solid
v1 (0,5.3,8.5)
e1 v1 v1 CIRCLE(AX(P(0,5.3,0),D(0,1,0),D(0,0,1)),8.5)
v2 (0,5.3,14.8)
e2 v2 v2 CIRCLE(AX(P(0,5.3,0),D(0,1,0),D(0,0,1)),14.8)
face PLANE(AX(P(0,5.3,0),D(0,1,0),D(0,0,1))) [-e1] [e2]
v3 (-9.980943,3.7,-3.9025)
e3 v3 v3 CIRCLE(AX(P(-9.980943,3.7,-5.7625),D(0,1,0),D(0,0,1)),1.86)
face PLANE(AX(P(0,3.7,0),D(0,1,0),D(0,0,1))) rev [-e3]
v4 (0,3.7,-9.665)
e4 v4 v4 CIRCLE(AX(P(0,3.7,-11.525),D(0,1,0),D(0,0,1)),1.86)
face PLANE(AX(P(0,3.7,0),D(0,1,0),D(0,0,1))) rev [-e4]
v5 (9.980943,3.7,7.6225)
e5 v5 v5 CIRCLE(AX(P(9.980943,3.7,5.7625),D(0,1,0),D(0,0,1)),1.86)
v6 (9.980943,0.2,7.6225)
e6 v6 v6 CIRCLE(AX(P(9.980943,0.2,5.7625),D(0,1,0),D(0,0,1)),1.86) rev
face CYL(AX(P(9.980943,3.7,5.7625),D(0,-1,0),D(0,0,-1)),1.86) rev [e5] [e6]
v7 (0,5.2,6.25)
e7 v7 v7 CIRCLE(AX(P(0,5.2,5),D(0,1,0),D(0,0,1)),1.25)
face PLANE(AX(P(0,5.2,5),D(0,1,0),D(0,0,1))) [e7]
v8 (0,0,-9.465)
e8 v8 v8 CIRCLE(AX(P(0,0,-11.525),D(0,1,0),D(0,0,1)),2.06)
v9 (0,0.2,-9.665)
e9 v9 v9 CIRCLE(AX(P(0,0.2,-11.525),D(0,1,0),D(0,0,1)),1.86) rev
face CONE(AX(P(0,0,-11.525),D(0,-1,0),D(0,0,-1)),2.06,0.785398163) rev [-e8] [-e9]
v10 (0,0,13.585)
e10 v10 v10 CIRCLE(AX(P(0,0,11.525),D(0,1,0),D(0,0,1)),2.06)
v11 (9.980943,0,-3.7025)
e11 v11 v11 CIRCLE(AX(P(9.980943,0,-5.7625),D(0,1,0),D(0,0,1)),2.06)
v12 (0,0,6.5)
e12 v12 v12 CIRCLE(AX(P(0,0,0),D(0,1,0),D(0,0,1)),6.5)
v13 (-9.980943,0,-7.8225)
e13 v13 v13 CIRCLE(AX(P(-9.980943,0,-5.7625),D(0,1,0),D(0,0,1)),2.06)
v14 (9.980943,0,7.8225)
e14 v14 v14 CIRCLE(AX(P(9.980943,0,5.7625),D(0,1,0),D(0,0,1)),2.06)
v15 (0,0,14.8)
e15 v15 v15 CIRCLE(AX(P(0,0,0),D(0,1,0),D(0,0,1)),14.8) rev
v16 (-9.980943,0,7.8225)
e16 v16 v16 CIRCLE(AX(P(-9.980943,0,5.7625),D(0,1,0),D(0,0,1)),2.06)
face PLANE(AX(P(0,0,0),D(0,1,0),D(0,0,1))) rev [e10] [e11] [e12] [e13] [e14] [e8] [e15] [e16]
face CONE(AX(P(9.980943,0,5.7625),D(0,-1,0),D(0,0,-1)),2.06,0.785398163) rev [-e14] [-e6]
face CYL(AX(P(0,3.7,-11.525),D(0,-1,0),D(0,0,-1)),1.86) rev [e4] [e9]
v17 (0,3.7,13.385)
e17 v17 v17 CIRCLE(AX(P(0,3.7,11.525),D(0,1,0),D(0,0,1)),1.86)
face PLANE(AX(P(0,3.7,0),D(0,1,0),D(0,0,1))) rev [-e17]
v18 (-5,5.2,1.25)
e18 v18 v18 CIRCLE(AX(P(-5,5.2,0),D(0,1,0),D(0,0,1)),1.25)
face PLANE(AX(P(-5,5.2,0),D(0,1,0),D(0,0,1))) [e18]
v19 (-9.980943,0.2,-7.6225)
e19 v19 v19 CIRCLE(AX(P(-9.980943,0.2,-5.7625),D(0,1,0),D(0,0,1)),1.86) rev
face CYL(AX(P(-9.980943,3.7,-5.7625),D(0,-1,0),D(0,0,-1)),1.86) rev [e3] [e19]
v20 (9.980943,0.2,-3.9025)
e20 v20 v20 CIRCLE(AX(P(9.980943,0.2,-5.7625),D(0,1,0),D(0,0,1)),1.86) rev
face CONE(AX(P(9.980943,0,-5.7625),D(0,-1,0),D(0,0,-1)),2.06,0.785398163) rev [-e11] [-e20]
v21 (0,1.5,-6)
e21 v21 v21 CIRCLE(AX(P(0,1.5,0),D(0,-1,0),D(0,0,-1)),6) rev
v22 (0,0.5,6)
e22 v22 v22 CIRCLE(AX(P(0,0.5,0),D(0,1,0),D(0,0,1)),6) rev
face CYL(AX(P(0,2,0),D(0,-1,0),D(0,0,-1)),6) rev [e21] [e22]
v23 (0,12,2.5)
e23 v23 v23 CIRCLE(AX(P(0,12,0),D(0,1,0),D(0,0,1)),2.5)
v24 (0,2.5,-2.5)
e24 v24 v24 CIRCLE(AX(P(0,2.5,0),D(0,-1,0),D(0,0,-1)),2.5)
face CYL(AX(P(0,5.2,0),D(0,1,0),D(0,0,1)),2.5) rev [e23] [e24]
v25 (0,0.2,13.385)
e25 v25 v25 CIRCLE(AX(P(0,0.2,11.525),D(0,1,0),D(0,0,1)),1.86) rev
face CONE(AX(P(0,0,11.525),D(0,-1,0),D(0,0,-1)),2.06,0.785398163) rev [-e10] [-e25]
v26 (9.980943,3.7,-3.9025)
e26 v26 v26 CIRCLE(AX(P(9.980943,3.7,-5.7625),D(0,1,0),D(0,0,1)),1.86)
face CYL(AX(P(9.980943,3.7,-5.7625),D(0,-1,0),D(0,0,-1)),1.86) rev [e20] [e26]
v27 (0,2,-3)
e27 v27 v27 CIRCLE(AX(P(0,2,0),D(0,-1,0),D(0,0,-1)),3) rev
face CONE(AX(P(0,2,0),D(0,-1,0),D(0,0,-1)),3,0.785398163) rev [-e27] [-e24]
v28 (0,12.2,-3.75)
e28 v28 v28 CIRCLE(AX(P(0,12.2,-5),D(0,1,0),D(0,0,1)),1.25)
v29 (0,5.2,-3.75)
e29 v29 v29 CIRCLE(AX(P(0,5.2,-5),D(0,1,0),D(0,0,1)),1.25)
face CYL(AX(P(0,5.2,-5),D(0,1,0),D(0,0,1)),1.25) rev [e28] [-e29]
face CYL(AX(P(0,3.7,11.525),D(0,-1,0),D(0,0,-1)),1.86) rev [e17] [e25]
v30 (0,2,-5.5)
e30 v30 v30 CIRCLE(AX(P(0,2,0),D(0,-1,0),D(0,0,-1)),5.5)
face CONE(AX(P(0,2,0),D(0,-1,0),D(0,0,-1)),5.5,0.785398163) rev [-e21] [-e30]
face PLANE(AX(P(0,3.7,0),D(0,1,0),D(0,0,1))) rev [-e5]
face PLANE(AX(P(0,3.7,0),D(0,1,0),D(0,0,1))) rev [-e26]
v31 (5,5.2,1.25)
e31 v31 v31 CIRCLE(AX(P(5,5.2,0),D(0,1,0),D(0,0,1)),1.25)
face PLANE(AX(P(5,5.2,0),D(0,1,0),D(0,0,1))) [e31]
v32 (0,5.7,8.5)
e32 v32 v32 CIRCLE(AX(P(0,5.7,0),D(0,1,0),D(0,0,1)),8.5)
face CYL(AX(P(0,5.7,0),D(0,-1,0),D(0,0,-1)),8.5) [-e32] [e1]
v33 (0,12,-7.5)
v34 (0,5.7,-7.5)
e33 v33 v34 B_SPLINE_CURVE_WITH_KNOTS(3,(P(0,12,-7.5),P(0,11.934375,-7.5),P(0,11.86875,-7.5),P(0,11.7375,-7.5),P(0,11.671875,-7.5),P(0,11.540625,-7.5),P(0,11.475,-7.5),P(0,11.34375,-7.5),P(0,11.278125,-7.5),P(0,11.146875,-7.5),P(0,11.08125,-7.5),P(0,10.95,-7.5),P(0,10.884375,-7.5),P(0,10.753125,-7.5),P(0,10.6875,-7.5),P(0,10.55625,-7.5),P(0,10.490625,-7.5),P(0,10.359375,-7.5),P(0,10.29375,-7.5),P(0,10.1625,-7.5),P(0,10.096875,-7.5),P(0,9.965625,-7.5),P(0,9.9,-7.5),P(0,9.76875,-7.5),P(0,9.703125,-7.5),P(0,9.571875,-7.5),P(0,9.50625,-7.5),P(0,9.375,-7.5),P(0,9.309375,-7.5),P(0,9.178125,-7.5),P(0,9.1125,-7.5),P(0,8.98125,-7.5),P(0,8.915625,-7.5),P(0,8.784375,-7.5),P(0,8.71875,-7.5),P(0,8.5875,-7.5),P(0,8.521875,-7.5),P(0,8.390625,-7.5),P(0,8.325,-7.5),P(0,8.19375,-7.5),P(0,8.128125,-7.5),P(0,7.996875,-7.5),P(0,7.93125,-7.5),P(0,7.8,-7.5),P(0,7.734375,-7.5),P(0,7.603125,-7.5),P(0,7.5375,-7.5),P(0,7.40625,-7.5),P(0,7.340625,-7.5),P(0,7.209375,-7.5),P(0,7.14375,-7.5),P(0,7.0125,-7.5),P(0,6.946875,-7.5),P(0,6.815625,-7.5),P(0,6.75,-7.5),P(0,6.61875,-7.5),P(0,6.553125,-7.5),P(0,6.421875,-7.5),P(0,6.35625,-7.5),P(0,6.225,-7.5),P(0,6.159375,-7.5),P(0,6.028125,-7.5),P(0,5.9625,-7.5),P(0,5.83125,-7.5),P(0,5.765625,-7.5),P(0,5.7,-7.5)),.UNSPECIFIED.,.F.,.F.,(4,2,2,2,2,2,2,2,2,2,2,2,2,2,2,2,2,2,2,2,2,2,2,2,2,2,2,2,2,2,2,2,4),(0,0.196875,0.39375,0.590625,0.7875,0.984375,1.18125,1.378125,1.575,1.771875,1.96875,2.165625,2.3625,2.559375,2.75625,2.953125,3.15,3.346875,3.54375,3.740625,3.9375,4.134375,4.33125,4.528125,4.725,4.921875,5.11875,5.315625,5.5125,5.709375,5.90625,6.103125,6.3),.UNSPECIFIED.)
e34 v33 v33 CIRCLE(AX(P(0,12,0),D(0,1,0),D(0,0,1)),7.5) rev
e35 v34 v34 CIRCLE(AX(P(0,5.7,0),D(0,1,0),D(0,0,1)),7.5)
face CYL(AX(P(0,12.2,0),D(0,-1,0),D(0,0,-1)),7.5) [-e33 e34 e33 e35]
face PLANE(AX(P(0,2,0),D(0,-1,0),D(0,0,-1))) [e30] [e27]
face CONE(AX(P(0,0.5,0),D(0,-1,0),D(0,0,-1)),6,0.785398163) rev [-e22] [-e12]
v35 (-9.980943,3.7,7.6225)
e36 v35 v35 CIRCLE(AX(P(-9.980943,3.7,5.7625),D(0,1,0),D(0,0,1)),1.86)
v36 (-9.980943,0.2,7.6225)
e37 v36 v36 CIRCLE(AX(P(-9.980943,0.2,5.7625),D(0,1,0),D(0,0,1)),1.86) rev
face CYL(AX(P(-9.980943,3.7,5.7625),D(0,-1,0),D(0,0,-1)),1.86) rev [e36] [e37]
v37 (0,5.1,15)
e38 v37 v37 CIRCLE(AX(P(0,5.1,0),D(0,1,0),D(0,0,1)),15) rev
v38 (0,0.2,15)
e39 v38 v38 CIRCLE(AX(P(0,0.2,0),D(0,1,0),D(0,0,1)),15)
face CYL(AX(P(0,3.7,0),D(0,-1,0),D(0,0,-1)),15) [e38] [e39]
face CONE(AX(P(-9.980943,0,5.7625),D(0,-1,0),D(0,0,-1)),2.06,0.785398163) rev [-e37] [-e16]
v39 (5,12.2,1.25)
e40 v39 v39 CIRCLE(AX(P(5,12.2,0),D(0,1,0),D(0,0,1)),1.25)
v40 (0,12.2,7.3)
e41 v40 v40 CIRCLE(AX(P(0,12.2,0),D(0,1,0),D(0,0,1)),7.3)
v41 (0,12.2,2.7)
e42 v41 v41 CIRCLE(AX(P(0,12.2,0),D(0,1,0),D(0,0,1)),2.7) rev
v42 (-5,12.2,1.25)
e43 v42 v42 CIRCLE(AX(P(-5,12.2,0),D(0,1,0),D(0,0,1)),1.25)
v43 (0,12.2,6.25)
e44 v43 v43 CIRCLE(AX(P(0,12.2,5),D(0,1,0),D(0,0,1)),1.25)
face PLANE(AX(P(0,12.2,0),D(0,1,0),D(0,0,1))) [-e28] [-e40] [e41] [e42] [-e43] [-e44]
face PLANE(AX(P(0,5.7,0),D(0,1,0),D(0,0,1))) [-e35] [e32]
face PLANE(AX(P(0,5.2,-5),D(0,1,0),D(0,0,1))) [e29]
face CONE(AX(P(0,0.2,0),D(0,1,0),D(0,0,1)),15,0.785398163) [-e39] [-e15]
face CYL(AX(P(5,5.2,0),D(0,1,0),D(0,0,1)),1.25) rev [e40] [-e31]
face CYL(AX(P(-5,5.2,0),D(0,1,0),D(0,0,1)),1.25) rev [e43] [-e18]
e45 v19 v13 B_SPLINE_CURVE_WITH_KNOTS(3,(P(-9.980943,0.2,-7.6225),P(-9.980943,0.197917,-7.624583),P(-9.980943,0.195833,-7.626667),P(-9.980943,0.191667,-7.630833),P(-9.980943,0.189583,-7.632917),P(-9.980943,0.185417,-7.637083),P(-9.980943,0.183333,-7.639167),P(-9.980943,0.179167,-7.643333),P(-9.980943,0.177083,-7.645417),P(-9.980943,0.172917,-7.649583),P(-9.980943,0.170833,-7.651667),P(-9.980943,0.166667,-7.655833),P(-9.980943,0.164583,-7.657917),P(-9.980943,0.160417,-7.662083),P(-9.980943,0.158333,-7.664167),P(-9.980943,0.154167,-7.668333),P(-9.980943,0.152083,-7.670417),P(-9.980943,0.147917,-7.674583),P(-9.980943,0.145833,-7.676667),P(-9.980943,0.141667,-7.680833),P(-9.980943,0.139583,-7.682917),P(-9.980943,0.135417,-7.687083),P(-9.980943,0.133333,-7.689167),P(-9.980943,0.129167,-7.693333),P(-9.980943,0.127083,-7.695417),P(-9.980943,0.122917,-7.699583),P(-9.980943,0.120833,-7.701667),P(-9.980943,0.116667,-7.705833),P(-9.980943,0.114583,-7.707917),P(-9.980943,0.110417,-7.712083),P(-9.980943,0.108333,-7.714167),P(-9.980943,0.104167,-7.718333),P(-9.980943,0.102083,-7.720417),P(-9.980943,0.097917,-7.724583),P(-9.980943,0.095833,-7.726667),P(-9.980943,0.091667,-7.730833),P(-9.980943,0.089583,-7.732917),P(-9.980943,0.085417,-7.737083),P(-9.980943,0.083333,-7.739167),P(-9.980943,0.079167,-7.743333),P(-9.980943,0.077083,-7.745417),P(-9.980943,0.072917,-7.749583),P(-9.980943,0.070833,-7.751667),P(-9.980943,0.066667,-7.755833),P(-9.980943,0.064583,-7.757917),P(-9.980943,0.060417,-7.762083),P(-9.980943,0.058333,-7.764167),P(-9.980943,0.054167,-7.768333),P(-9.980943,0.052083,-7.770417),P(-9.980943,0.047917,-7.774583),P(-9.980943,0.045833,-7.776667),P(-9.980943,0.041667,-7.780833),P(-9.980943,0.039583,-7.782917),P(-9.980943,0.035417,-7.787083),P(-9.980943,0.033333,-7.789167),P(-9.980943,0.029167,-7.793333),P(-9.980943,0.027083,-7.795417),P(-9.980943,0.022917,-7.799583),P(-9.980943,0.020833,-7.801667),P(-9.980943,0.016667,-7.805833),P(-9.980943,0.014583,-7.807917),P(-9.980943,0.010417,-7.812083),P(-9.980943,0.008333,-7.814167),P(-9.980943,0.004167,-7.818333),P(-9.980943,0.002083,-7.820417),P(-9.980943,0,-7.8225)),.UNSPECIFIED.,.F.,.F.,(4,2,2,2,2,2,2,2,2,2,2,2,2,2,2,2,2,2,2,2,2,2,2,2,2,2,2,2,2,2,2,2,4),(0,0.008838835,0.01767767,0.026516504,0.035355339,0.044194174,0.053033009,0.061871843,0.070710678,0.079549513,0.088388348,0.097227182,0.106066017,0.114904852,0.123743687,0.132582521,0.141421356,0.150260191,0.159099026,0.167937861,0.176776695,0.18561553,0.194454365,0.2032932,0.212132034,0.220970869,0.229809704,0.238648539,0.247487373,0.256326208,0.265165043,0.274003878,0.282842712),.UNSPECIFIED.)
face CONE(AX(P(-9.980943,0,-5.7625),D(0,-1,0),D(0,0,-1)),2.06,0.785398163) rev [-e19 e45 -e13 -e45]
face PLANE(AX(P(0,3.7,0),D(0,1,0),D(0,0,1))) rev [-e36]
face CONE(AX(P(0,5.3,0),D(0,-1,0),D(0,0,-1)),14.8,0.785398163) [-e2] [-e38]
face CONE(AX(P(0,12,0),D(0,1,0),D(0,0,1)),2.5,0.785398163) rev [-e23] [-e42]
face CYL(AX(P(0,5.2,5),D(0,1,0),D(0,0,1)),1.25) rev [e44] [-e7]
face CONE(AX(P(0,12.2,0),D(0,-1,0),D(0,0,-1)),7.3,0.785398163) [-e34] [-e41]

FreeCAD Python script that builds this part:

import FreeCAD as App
import Part
import Sketcher


def edges_at(feature, points):
    """Names of the edges that pass closest to the given points."""
    edges = feature.Shape.Edges
    near = lambda p: min(range(len(edges)), key=lambda i: edges[i].distToShape(Part.Vertex(*p))[0])
    return sorted({f"Edge{near(p) + 1}" for p in points})

doc = App.newDocument("Part")
body = doc.addObject("PartDesign::Body", "Body")

# Sketch on XZ plane
sketch1 = body.newObject("Sketcher::SketchObject", "Sketch")
sketch1.AttachmentSupport = (doc.getObject("XZ_Plane"), [""])
sketch1.MapMode = "FlatFace"
sketch1.addGeometry([
    Part.Circle(App.Vector(0, 0, 0), App.Vector(0, 0, 1), 15),  # 0
    Part.Circle(App.Vector(-10, -5.8, 0), App.Vector(0, 0, 1), 1.9),  # 1
    Part.Circle(App.Vector(0, -11.5, 0), App.Vector(0, 0, 1), 1.9),  # 2
    Part.Circle(App.Vector(-10, 5.8, 0), App.Vector(0, 0, 1), 1.9),  # 3
    Part.Circle(App.Vector(10, -5.8, 0), App.Vector(0, 0, 1), 1.9),  # 4
    Part.Circle(App.Vector(0, 11.5, 0), App.Vector(0, 0, 1), 1.9),  # 5
    Part.Circle(App.Vector(10, 5.8, 0), App.Vector(0, 0, 1), 1.9),  # 6
], False)
sketch1.addConstraint([
    Sketcher.Constraint("Coincident", 0, 3, -1, 1),
    Sketcher.Constraint("Equal", 1, 2),
    Sketcher.Constraint("Equal", 2, 3),
    Sketcher.Constraint("Equal", 3, 4),
    Sketcher.Constraint("Equal", 4, 5),
    Sketcher.Constraint("Equal", 5, 6),
    Sketcher.Constraint("Symmetric", 3, 3, 4, 3, -1, 1),
    Sketcher.Constraint("Symmetric", 2, 3, 5, 3, -1, 1),
    Sketcher.Constraint("Symmetric", 1, 3, 6, 3, -1, 1),
    Sketcher.Constraint("Symmetric", 1, 3, 4, 3, -2),
    Sketcher.Constraint("PointOnObject", 2, 3, -2),
    Sketcher.Constraint("Diameter", 0, 30.0),
    Sketcher.Constraint("Diameter", 1, 3.72),
    Sketcher.Constraint("DistanceY", 2, 3, 5, 3, 23.05),
    Sketcher.Constraint("DistanceY", 1, 3, 3, 3, 11.525),
    Sketcher.Constraint("DistanceX", 1, 3, -1, 1, 9.980943),
])
pad1 = body.newObject("PartDesign::Pad", "Pad")
pad1.Profile = sketch1
pad1.Length = 3.7
pad1.Reversed = True

# Sketch on XZ plane
sketch2 = body.newObject("Sketcher::SketchObject", "Sketch001")
sketch2.AttachmentSupport = (doc.getObject("XZ_Plane"), [""])
sketch2.MapMode = "FlatFace"
sketch2.AttachmentOffset = App.Placement(App.Vector(0, 0, -3.7), App.Rotation())
sketch2.addGeometry(Part.Circle(App.Vector(0, 0, 0), App.Vector(0, 0, 1), 15), False)
sketch2.addConstraint([
    Sketcher.Constraint("Coincident", 0, 3, -1, 1),
    Sketcher.Constraint("Diameter", 0, 30.0),
])
pad2 = body.newObject("PartDesign::Pad", "Pad001")
pad2.Profile = sketch2
pad2.Length = 1.6
pad2.Reversed = True

# Sketch on XZ plane
sketch3 = body.newObject("Sketcher::SketchObject", "Sketch002")
sketch3.AttachmentSupport = (doc.getObject("XZ_Plane"), [""])
sketch3.MapMode = "FlatFace"
sketch3.AttachmentOffset = App.Placement(App.Vector(0, 0, -5.3), App.Rotation())
sketch3.addGeometry(Part.Circle(App.Vector(0, 0, 0), App.Vector(0, 0, 1), 8), False)
sketch3.addConstraint([
    Sketcher.Constraint("Coincident", 0, 3, -1, 1),
    Sketcher.Constraint("Diameter", 0, 17.0),
])
pad3 = body.newObject("PartDesign::Pad", "Pad002")
pad3.Profile = sketch3
pad3.Length = 0.4
pad3.Reversed = True

# Sketch on XZ plane
sketch4 = body.newObject("Sketcher::SketchObject", "Sketch003")
sketch4.AttachmentSupport = (doc.getObject("XZ_Plane"), [""])
sketch4.MapMode = "FlatFace"
sketch4.AttachmentOffset = App.Placement(App.Vector(0, 0, -5.7), App.Rotation())
sketch4.addGeometry(Part.Circle(App.Vector(0, 0, 0), App.Vector(0, 0, 1), 8), False)
sketch4.addConstraint([
    Sketcher.Constraint("Coincident", 0, 3, -1, 1),
    Sketcher.Constraint("Diameter", 0, 15.0),
])
pad4 = body.newObject("PartDesign::Pad", "Pad003")
pad4.Profile = sketch4
pad4.Length = 6.5
pad4.Reversed = True

# Sketch on XZ plane
sketch5 = body.newObject("Sketcher::SketchObject", "Sketch004")
sketch5.AttachmentSupport = (doc.getObject("XZ_Plane"), [""])
sketch5.MapMode = "FlatFace"
sketch5.AttachmentOffset = App.Placement(App.Vector(0, 0, -12.2), App.Rotation())
sketch5.addGeometry([
    Part.Circle(App.Vector(0, -5, 0), App.Vector(0, 0, 1), 1.2),  # 0
    Part.Circle(App.Vector(5, 0, 0), App.Vector(0, 0, 1), 1.2),  # 1
    Part.Circle(App.Vector(0, 5, 0), App.Vector(0, 0, 1), 1.2),  # 2
    Part.Circle(App.Vector(-5, 0, 0), App.Vector(0, 0, 1), 1.2),  # 3
    Part.Circle(App.Vector(0, 0, 0), App.Vector(0, 0, 1), 2.5),  # 4
], False)
sketch5.addConstraint([
    Sketcher.Constraint("Coincident", 4, 3, -1, 1),
    Sketcher.Constraint("Equal", 0, 1),
    Sketcher.Constraint("Equal", 1, 2),
    Sketcher.Constraint("Equal", 2, 3),
    Sketcher.Constraint("Symmetric", 0, 3, 2, 3, -1, 1),
    Sketcher.Constraint("Symmetric", 1, 3, 3, 3, -1, 1),
    Sketcher.Constraint("PointOnObject", 0, 3, -2),
    Sketcher.Constraint("PointOnObject", 1, 3, -1),
    Sketcher.Constraint("Diameter", 4, 5.0),
    Sketcher.Constraint("Diameter", 0, 2.5),
    Sketcher.Constraint("DistanceY", 0, 3, -1, 1, 5.0),
    Sketcher.Constraint("DistanceX", -1, 1, 1, 3, 5.0),
])
pocket1 = body.newObject("PartDesign::Pocket", "Pocket")
pocket1.Profile = sketch5
pocket1.Length = 7
pocket1.Reversed = True
doc.recompute()

chamfer = body.newObject("PartDesign::Chamfer", "Chamfer")
chamfer.Base = (pocket1, edges_at(pocket1, [
    (9.981, 0, 3.902),
    (0, 0, 9.665),
    (0, 0, -15),
    (-9.981, 0, 3.902),
    (-9.981, 0, -7.622),
    (0, 5.3, -15),
    (0, 12.2, 7.5),
    (0, 0, -13.385),
    (0, 12.2, -2.5),
    (9.981, 0, -7.622),
]))
chamfer.Size = 0.2

# Sketch on XZ plane
sketch6 = body.newObject("Sketcher::SketchObject", "Sketch005")
sketch6.AttachmentSupport = (doc.getObject("XZ_Plane"), [""])
sketch6.MapMode = "FlatFace"
sketch6.AttachmentOffset = App.Placement(App.Vector(0, 0, -5.2), App.Rotation())
sketch6.addGeometry(Part.Circle(App.Vector(0, 0, 0), App.Vector(0, 0, 1), 2.5), False)
sketch6.addConstraint([
    Sketcher.Constraint("Coincident", 0, 3, -1, 1),
    Sketcher.Constraint("Diameter", 0, 5.0),
])
pocket2 = body.newObject("PartDesign::Pocket", "Pocket001")
pocket2.Profile = sketch6
pocket2.Type = "ThroughAll"
pocket2.Reversed = True

# Sketch on XZ plane
sketch7 = body.newObject("Sketcher::SketchObject", "Sketch006")
sketch7.AttachmentSupport = (doc.getObject("XZ_Plane"), [""])
sketch7.MapMode = "FlatFace"
sketch7.addGeometry(Part.Circle(App.Vector(0, 0, 0), App.Vector(0, 0, 1), 6), False)
sketch7.addConstraint([
    Sketcher.Constraint("Coincident", 0, 3, -1, 1),
    Sketcher.Constraint("Diameter", 0, 12.0),
])
pocket3 = body.newObject("PartDesign::Pocket", "Pocket002")
pocket3.Profile = sketch7
pocket3.Length = 2
doc.recompute()

chamfer2 = body.newObject("PartDesign::Chamfer", "Chamfer001")
chamfer2.Base = (pocket3, edges_at(pocket3, [(0, 0, 6), (0, 2, 6), (0, 2, -2.5)]))
chamfer2.Size = 0.5

doc.recompute()
